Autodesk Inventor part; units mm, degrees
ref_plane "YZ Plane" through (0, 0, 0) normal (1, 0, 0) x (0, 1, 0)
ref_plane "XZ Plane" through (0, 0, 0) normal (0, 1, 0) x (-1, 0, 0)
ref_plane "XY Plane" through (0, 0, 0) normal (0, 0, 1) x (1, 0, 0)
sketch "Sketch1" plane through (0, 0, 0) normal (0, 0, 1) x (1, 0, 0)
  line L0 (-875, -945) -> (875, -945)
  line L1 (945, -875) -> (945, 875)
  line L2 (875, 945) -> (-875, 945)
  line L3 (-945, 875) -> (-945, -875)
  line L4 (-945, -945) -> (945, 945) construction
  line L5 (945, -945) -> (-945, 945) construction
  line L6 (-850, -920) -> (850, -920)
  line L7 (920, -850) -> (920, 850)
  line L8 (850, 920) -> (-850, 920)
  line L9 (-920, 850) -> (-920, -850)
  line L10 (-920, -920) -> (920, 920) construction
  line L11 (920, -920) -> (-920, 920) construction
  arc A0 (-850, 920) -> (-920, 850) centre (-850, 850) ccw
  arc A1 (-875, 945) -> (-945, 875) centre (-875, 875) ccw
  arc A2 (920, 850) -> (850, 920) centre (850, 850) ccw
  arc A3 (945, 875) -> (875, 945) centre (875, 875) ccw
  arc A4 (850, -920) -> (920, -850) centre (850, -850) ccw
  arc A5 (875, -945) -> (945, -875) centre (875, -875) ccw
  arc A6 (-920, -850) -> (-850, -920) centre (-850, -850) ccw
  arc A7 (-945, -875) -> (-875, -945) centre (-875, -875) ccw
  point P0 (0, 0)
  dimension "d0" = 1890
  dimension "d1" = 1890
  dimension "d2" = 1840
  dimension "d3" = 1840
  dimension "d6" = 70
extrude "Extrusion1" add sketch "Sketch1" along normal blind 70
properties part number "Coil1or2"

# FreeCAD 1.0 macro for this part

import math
import FreeCAD as App
import Part
import Sketcher
from FreeCAD import Vector
Q = App.Units.Quantity

doc = App.newDocument("Part")
body = doc.addObject("PartDesign::Body", "Body")

sketch1 = body.newObject("Sketcher::SketchObject", "Sketch")
sketch1.AttachmentSupport = (doc.getObject("XY_Plane"), [""])
sketch1.MapMode = "FlatFace"
sketch1.addGeometry(Part.ArcOfCircle(Part.Circle(Vector(-875, -875, 0), Vector(0, 0, 1), 70), math.radians(180), math.radians(270)), False)
sketch1.addGeometry(Part.LineSegment(Vector(-875, -945, 0), Vector(875, -945, 0)), False)
sketch1.addGeometry(Part.ArcOfCircle(Part.Circle(Vector(875, -875, 0), Vector(0, 0, 1), 70), math.radians(-90), math.radians(0)), False)
sketch1.addGeometry(Part.LineSegment(Vector(945, -875, 0), Vector(945, 875, 0)), False)
sketch1.addGeometry(Part.ArcOfCircle(Part.Circle(Vector(875, 875, 0), Vector(0, 0, 1), 70), math.radians(0), math.radians(90)), False)
sketch1.addGeometry(Part.LineSegment(Vector(875, 945, 0), Vector(-875, 945, 0)), False)
sketch1.addGeometry(Part.ArcOfCircle(Part.Circle(Vector(-875, 875, 0), Vector(0, 0, 1), 70), math.radians(90), math.radians(180)), False)
sketch1.addGeometry(Part.LineSegment(Vector(-945, 875, 0), Vector(-945, -875, 0)), False)
sketch1.addGeometry(Part.LineSegment(Vector(850, -920, 0), Vector(-850, -920, 0)), False)
sketch1.addGeometry(Part.ArcOfCircle(Part.Circle(Vector(-850, -850, 0), Vector(0, 0, 1), 70), math.radians(180), math.radians(270)), False)
sketch1.addGeometry(Part.LineSegment(Vector(-920, -850, 0), Vector(-920, 850, 0)), False)
sketch1.addGeometry(Part.ArcOfCircle(Part.Circle(Vector(-850, 850, 0), Vector(0, 0, 1), 70), math.radians(90), math.radians(180)), False)
sketch1.addGeometry(Part.LineSegment(Vector(-850, 920, 0), Vector(850, 920, 0)), False)
sketch1.addGeometry(Part.ArcOfCircle(Part.Circle(Vector(850, 850, 0), Vector(0, 0, 1), 70), math.radians(0), math.radians(90)), False)
sketch1.addGeometry(Part.LineSegment(Vector(920, 850, 0), Vector(920, -850, 0)), False)
sketch1.addGeometry(Part.ArcOfCircle(Part.Circle(Vector(850, -850, 0), Vector(0, 0, 1), 70), math.radians(-90), math.radians(0)), False)
sketch1.addConstraint(Sketcher.Constraint("Tangent", 0, 2, 1, 1))
sketch1.addConstraint(Sketcher.Constraint("Tangent", 1, 2, 2, 1))
sketch1.addConstraint(Sketcher.Constraint("Tangent", 2, 2, 3, 1))
sketch1.addConstraint(Sketcher.Constraint("Tangent", 3, 2, 4, 1))
sketch1.addConstraint(Sketcher.Constraint("Tangent", 4, 2, 5, 1))
sketch1.addConstraint(Sketcher.Constraint("Tangent", 5, 2, 6, 1))
sketch1.addConstraint(Sketcher.Constraint("Tangent", 6, 2, 7, 1))
sketch1.addConstraint(Sketcher.Constraint("Tangent", 7, 2, 0, 1))
sketch1.addConstraint(Sketcher.Constraint("Tangent", 8, 2, 9, 2))
sketch1.addConstraint(Sketcher.Constraint("Tangent", 9, 1, 10, 1))
sketch1.addConstraint(Sketcher.Constraint("Tangent", 10, 2, 11, 2))
sketch1.addConstraint(Sketcher.Constraint("Tangent", 11, 1, 12, 1))
sketch1.addConstraint(Sketcher.Constraint("Tangent", 12, 2, 13, 2))
sketch1.addConstraint(Sketcher.Constraint("Tangent", 13, 1, 14, 1))
sketch1.addConstraint(Sketcher.Constraint("Tangent", 14, 2, 15, 2))
sketch1.addConstraint(Sketcher.Constraint("Tangent", 15, 1, 8, 1))
sketch1.addConstraint(Sketcher.Constraint("Horizontal", 1))
sketch1.addConstraint(Sketcher.Constraint("Vertical", 3))
sketch1.addConstraint(Sketcher.Constraint("Horizontal", 5))
sketch1.addConstraint(Sketcher.Constraint("Vertical", 7))
sketch1.addConstraint(Sketcher.Constraint("Horizontal", 8))
sketch1.addConstraint(Sketcher.Constraint("Vertical", 10))
sketch1.addConstraint(Sketcher.Constraint("Horizontal", 12))
sketch1.addConstraint(Sketcher.Constraint("Vertical", 14))
sketch1.addConstraint(Sketcher.Constraint("Equal", 0, 2))
sketch1.addConstraint(Sketcher.Constraint("Equal", 2, 4))
sketch1.addConstraint(Sketcher.Constraint("Equal", 4, 6))
sketch1.addConstraint(Sketcher.Constraint("Equal", 6, 9))
sketch1.addConstraint(Sketcher.Constraint("Equal", 9, 11))
sketch1.addConstraint(Sketcher.Constraint("Equal", 11, 13))
sketch1.addConstraint(Sketcher.Constraint("Equal", 13, 15))
sketch1.addConstraint(Sketcher.Constraint("Symmetric", 0, 3, 4, 3, -1, 1))
sketch1.addConstraint(Sketcher.Constraint("Symmetric", 9, 3, 13, 3, -1, 1))
sketch1.addConstraint(Sketcher.Constraint("Equal", 5, 3))
sketch1.addConstraint(Sketcher.Constraint("Equal", 12, 10))
sketch1.addConstraint(Sketcher.Constraint("Radius", 0, Q("70 mm")))
sketch1.addConstraint(Sketcher.Constraint("DistanceX", 1, 1, 1, 2, Q("1750 mm")))
sketch1.addConstraint(Sketcher.Constraint("DistanceX", 8, 2, 8, 1, Q("1700 mm")))
pad1 = body.newObject("PartDesign::Pad", "Pad")
pad1.Profile = sketch1
pad1.Length = 70

doc.recompute()
